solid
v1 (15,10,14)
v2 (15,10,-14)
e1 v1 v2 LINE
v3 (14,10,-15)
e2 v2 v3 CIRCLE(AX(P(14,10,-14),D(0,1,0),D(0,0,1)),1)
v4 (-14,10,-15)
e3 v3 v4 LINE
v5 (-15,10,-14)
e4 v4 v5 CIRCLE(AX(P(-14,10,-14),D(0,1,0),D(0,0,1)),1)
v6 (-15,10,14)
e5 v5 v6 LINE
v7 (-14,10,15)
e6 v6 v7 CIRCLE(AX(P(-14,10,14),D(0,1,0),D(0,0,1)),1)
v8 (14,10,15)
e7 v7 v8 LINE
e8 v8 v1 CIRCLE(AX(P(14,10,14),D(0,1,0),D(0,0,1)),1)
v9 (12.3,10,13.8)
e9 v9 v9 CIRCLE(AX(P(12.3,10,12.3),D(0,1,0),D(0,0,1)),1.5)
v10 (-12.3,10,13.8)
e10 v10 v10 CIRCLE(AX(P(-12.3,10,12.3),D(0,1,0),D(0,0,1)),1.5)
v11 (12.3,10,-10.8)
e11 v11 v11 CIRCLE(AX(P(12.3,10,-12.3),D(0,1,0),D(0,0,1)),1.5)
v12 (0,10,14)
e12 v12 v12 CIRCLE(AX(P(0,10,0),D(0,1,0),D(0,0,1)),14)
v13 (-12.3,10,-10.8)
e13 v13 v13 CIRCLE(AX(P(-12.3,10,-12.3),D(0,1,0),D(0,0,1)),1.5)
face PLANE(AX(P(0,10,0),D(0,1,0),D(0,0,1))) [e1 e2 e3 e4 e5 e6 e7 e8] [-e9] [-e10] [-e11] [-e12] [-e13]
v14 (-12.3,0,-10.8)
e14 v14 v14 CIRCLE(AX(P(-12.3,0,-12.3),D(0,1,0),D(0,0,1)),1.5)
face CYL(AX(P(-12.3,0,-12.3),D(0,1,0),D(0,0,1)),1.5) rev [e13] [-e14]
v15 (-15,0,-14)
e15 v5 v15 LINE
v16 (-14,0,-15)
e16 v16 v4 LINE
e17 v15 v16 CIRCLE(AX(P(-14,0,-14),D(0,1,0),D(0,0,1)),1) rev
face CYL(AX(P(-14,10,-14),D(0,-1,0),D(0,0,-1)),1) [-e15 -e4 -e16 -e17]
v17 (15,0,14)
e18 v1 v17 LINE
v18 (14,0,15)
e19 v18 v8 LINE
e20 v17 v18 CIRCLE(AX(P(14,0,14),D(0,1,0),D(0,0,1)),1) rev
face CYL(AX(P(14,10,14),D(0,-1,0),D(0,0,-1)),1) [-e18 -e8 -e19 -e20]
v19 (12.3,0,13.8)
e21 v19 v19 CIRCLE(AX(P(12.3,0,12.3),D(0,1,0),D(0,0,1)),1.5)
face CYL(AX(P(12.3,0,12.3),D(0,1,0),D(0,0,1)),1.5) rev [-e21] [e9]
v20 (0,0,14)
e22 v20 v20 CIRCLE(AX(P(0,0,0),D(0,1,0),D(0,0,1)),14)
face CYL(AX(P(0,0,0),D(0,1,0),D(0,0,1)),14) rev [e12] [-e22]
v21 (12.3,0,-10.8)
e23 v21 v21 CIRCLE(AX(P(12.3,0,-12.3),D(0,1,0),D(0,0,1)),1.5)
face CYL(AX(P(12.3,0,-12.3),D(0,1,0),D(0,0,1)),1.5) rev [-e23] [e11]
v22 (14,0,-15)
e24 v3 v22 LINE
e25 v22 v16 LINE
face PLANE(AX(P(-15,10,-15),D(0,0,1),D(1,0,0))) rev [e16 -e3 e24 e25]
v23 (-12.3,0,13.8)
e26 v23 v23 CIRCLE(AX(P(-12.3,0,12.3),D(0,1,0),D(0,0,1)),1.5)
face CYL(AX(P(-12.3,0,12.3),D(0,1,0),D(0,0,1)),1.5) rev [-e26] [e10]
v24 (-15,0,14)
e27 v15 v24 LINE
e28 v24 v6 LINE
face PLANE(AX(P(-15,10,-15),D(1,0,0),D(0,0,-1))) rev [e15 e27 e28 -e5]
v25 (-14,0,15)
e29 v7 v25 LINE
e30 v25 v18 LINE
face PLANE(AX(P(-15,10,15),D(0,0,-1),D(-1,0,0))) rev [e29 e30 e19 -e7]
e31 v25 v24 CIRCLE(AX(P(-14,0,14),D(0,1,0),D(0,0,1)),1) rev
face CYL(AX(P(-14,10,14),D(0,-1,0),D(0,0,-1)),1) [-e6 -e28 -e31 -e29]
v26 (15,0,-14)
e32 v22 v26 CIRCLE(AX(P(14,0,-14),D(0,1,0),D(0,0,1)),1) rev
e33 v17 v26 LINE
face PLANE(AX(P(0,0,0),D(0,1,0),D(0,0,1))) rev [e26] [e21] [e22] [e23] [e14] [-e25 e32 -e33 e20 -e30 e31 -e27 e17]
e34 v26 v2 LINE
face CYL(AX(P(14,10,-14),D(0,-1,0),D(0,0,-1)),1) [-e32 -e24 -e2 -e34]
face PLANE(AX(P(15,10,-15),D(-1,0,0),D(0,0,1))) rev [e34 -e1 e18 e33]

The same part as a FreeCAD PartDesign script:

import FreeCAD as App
import Part
import Sketcher
from FreeCAD import Vector


def edges_at(feature, points):
    """Names of the edges that pass closest to the given points."""
    edges = feature.Shape.Edges
    near = lambda p: min(range(len(edges)), key=lambda i: edges[i].distToShape(Part.Vertex(*p))[0])
    return sorted({f"Edge{near(p) + 1}" for p in points})


def add_polygon(sketch, points):
    """Adds a closed chain of lines whose ends are joined by coincident constraints."""
    first, n = sketch.GeometryCount, len(points)
    for a, b in zip(points, points[1:] + points[:1]):
        sketch.addGeometry(Part.LineSegment(App.Vector(*a, 0), App.Vector(*b, 0)), False)
    for i in range(n):
        sketch.addConstraint(Sketcher.Constraint("Coincident", first + i, 2, first + (i + 1) % n, 1))

doc = App.newDocument("Part")
body = doc.addObject("PartDesign::Body", "Body")

sketch1 = body.newObject("Sketcher::SketchObject", "Sketch")
sketch1.AttachmentSupport = (doc.getObject("XZ_Plane"), [""])
sketch1.MapMode = "FlatFace"
add_polygon(sketch1, [(-15, -15), (-15, 15), (15, 15), (15, -15)])
sketch1.addConstraint([
    Sketcher.Constraint("Vertical", 0),
    Sketcher.Constraint("Horizontal", 1),
    Sketcher.Constraint("Vertical", 2),
    Sketcher.Constraint("Horizontal", 3),
    Sketcher.Constraint("Symmetric", 0, 2, 2, 2, -1, 1),
    Sketcher.Constraint("Equal", 3, 0),
    Sketcher.Constraint("DistanceX", 1, 1, 1, 2, 30.0),
])
pad1 = body.newObject("PartDesign::Pad", "Pad")
pad1.Profile = sketch1
pad1.Length = 10
pad1.Reversed = True

sketch2 = body.newObject("Sketcher::SketchObject", "Sketch001")
sketch2.AttachmentSupport = (doc.getObject("XZ_Plane"), [""])
sketch2.MapMode = "FlatFace"
sketch2.AttachmentOffset = App.Placement(Vector(0, 0, -10), App.Rotation())
sketch2.addGeometry([
    Part.Circle(Vector(-12.3, -12.3, 0), Vector(0, 0, 1), 1.5),
    Part.Circle(Vector(12.3, -12.3, 0), Vector(0, 0, 1), 1.5),
    Part.Circle(Vector(-12.3, 12.3, 0), Vector(0, 0, 1), 1.5),
    Part.Circle(Vector(12.3, 12.3, 0), Vector(0, 0, 1), 1.5),
], False)
sketch2.addConstraint([
    Sketcher.Constraint("Equal", 0, 1),
    Sketcher.Constraint("Equal", 1, 2),
    Sketcher.Constraint("Equal", 2, 3),
    Sketcher.Constraint("Symmetric", 1, 3, 2, 3, -1, 1),
    Sketcher.Constraint("Symmetric", 0, 3, 3, 3, -1, 1),
    Sketcher.Constraint("Symmetric", 0, 3, 1, 3, -2),
    Sketcher.Constraint("Diameter", 0, 3.0),
    Sketcher.Constraint("DistanceX", 0, 3, -1, 1, 12.3),
    Sketcher.Constraint("DistanceY", 0, 3, -1, 1, 12.3),
])
pocket1 = body.newObject("PartDesign::Pocket", "Pocket")
pocket1.Profile = sketch2
pocket1.Type = "ThroughAll"
pocket1.Reversed = True
doc.recompute()

fillet = body.newObject("PartDesign::Fillet", "Fillet")
fillet.Base = (pocket1, edges_at(pocket1, [
    (15, 5, 15),
    (-15, 5, 15),
    (-15, 5, -15),
    (15, 5, -15),
]))
fillet.Radius = 1

sketch3 = body.newObject("Sketcher::SketchObject", "Sketch002")
sketch3.AttachmentSupport = (doc.getObject("XZ_Plane"), [""])
sketch3.MapMode = "FlatFace"
sketch3.AttachmentOffset = App.Placement(Vector(0, 0, -10), App.Rotation())
sketch3.addGeometry(Part.Circle(Vector(0, 0, 0), Vector(0, 0, 1), 14), False)
sketch3.addConstraint([
    Sketcher.Constraint("Coincident", 0, 3, -1, 1),
    Sketcher.Constraint("Diameter", 0, 28.0),
])
pocket2 = body.newObject("PartDesign::Pocket", "Pocket001")
pocket2.Profile = sketch3
pocket2.Type = "ThroughAll"
pocket2.Reversed = True

doc.recompute()
